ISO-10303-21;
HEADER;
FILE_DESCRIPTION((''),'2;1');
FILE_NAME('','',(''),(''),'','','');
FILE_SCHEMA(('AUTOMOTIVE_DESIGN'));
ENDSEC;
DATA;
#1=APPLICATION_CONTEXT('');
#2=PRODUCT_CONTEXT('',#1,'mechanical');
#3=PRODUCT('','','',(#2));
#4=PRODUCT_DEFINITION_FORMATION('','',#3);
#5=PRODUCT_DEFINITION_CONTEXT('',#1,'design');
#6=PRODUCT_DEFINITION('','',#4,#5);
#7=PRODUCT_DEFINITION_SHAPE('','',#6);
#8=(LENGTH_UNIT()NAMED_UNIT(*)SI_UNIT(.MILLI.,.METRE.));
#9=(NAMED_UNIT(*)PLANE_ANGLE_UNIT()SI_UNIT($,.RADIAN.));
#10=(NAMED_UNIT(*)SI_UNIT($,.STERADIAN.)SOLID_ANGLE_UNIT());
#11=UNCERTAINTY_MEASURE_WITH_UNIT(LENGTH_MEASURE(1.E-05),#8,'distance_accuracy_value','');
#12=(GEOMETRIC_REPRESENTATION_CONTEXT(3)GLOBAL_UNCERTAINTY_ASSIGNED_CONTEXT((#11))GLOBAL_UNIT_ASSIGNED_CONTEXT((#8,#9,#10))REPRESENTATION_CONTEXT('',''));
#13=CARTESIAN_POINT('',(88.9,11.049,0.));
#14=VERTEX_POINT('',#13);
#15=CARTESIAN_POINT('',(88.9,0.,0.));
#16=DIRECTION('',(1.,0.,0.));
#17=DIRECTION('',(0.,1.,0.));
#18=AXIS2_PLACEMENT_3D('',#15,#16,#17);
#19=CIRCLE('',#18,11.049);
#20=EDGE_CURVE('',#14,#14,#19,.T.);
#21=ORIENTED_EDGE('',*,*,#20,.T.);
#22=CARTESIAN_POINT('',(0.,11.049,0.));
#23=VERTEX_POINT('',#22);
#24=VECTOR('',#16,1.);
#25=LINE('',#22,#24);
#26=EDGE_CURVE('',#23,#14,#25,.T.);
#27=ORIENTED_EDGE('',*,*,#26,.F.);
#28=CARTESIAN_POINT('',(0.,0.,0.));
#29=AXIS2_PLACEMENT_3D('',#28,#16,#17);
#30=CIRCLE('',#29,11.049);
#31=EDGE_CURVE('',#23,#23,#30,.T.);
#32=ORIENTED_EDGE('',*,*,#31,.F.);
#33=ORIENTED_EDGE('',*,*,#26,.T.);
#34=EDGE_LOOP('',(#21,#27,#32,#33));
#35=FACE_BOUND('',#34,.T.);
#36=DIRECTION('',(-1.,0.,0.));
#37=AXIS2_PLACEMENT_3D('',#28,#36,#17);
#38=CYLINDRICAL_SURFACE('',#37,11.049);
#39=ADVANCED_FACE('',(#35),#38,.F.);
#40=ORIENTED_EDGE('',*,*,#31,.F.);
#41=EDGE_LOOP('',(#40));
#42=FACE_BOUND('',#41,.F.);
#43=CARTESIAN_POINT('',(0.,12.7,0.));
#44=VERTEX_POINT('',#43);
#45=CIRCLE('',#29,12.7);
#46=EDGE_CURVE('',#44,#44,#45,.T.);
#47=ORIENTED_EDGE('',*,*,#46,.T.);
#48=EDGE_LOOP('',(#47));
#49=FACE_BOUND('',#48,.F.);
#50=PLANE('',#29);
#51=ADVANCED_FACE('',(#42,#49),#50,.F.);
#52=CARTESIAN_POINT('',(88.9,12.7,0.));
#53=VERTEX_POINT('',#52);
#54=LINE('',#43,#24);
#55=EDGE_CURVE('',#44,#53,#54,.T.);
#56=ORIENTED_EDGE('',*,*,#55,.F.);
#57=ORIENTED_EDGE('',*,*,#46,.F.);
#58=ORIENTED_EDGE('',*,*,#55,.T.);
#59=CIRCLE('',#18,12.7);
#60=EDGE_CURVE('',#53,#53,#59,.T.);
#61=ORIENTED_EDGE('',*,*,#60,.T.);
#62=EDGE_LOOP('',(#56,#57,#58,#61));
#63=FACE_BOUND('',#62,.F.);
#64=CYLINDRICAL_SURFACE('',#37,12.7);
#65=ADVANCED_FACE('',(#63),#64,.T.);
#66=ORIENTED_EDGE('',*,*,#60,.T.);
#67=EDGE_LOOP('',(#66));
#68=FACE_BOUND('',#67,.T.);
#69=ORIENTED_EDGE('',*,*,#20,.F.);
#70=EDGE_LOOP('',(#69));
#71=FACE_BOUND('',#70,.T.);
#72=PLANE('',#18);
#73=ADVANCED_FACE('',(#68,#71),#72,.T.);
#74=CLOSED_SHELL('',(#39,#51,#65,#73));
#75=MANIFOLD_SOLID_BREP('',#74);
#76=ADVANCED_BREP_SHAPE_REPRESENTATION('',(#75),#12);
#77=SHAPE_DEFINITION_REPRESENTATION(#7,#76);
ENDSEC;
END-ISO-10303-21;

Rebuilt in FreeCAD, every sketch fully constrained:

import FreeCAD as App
import Part
import Sketcher
from FreeCAD import Vector
Q = App.Units.Quantity

doc = App.newDocument("Part")
body = doc.addObject("PartDesign::Body", "Body")

# Sketch on YZ plane
sketch1 = body.newObject("Sketcher::SketchObject", "Sketch")
sketch1.AttachmentSupport = (doc.getObject("YZ_Plane"), [""])
sketch1.MapMode = "FlatFace"
sketch1.addGeometry([
    Part.Circle(Vector(0, 0, 0), Vector(0, 0, 1), 12.7),
    Part.Circle(Vector(0, 0, 0), Vector(0, 0, 1), 11.049),
], False)
sketch1.addConstraint([
    Sketcher.Constraint("Coincident", 0, 3, -1, 1),
    Sketcher.Constraint("Coincident", 1, 3, -1, 1),
    Sketcher.Constraint("Diameter", 0, Q("1 in")),
    Sketcher.Constraint("Diameter", 1, Q("0.87 in")),
])
pad1 = body.newObject("PartDesign::Pad", "Pad")
pad1.Profile = sketch1
pad1.Length = Q("3.5 in")

doc.recompute()
